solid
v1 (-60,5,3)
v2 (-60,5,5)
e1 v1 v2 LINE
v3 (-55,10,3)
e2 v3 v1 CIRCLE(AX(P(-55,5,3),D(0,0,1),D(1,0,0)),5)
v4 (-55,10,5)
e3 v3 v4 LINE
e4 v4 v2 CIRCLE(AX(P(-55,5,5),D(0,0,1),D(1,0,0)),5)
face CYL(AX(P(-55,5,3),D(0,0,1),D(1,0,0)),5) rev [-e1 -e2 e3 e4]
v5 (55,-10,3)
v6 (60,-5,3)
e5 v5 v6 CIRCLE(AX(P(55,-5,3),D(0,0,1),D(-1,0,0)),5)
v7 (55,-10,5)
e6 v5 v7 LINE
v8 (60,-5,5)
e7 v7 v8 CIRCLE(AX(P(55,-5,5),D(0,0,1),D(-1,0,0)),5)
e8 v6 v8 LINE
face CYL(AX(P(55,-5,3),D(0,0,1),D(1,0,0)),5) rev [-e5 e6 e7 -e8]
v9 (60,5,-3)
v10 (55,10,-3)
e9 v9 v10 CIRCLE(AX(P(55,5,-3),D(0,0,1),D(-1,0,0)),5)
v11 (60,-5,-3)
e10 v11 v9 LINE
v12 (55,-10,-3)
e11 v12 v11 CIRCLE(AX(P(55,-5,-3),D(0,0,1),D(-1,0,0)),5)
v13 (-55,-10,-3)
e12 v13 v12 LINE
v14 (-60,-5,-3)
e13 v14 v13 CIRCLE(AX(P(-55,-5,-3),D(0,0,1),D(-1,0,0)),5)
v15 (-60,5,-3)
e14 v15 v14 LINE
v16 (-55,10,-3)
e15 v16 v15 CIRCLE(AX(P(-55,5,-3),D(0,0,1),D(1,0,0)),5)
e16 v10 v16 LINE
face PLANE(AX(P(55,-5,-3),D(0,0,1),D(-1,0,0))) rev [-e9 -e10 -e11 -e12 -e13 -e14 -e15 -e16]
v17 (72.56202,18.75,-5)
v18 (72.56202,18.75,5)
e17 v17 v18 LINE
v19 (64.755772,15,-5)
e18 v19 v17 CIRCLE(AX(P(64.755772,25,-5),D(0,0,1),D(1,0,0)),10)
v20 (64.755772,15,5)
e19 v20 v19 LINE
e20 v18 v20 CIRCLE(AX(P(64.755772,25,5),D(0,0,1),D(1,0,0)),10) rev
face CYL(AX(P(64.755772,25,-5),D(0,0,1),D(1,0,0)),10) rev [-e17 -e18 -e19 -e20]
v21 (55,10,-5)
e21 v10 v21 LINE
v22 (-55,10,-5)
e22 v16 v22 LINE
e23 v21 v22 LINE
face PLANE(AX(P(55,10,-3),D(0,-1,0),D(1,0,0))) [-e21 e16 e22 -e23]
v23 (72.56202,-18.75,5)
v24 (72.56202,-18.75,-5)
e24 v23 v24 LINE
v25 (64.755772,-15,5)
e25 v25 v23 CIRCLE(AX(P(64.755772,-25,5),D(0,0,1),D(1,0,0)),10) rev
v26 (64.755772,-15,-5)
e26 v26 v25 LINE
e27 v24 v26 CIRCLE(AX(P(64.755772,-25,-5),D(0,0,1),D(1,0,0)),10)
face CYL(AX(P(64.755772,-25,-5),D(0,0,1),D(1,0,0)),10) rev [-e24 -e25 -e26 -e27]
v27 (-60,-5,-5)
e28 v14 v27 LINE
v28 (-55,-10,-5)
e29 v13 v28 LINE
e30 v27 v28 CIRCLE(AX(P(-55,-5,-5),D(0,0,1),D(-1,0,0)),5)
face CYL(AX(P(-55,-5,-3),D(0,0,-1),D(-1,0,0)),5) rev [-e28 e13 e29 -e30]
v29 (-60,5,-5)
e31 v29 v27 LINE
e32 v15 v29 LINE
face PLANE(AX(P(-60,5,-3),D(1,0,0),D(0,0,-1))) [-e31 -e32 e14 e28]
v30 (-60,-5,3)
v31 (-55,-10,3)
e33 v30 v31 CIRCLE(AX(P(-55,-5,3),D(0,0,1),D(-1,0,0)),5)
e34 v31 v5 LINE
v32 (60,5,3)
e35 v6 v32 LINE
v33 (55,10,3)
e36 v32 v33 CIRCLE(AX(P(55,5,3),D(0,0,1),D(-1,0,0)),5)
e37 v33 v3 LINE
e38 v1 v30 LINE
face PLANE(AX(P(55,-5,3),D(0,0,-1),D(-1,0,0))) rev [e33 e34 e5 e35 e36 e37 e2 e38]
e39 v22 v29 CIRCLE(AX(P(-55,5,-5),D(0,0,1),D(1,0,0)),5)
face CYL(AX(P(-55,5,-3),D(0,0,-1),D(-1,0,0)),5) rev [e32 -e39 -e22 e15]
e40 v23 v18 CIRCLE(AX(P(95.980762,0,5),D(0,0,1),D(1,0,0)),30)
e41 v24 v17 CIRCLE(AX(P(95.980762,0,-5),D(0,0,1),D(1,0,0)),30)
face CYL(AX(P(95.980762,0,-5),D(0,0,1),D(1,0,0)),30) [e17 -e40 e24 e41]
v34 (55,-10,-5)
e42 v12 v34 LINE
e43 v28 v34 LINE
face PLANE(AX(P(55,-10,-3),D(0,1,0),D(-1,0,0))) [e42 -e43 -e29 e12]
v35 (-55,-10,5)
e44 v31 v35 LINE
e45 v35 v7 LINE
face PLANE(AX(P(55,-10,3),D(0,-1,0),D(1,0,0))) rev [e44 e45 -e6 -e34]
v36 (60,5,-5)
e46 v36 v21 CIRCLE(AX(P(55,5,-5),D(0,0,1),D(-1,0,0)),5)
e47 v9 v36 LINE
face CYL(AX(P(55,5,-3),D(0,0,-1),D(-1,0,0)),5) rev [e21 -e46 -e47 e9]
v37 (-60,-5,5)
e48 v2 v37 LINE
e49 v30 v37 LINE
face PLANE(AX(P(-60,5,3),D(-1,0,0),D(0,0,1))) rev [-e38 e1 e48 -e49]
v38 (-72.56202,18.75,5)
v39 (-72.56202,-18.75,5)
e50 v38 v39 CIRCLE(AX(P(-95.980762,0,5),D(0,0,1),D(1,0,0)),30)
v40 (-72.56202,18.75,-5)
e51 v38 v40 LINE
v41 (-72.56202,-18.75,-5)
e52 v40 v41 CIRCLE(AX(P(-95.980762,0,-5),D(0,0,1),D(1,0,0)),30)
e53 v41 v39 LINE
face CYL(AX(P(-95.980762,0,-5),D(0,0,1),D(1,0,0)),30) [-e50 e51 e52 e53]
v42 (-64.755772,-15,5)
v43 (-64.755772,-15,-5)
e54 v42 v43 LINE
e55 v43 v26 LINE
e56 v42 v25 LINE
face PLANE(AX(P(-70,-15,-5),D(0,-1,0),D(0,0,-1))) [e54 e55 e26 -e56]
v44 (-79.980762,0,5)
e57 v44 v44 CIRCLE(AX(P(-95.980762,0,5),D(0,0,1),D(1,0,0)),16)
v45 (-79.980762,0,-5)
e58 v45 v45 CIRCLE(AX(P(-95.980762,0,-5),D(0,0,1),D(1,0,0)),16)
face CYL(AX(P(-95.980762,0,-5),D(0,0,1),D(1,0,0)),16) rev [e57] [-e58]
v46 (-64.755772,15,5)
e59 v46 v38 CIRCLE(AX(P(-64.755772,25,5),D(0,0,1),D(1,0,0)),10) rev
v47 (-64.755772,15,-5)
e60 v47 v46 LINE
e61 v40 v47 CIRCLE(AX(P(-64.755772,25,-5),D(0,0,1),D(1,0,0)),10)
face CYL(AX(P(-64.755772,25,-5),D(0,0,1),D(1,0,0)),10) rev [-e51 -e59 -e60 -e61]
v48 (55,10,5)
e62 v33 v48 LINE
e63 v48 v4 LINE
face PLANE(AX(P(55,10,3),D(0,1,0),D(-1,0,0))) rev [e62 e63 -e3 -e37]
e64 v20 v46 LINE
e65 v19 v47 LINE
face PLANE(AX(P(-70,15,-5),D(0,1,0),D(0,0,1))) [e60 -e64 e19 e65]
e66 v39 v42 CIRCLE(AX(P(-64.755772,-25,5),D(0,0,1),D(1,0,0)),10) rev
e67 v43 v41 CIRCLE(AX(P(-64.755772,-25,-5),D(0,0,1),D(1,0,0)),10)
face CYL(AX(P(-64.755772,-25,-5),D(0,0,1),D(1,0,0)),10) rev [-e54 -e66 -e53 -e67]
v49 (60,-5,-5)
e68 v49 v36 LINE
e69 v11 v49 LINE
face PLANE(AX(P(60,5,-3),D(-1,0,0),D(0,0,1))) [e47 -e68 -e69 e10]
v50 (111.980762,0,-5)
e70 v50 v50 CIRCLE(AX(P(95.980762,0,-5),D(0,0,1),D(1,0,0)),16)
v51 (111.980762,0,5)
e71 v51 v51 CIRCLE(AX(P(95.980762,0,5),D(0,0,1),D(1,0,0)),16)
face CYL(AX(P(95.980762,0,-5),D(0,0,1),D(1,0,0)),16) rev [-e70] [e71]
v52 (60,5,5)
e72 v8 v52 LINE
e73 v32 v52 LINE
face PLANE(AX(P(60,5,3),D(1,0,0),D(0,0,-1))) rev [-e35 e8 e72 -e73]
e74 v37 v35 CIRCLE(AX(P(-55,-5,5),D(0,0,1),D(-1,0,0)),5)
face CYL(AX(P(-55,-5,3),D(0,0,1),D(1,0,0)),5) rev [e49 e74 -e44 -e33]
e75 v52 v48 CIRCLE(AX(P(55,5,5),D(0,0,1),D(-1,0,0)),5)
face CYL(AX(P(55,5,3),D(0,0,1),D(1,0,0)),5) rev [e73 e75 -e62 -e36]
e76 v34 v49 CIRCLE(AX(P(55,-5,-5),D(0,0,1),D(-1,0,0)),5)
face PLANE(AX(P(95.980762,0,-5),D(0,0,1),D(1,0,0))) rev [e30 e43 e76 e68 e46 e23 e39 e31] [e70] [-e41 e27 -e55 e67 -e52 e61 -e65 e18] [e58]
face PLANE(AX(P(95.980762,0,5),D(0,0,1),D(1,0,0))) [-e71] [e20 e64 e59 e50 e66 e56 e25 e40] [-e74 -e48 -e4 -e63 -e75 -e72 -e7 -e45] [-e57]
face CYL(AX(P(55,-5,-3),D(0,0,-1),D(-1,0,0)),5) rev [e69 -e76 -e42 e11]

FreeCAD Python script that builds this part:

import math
import FreeCAD as App
import Part
import Sketcher

V = App.Vector


def edges_at(feature, points):
    """Names of the edges that pass closest to the given points."""
    edges = feature.Shape.Edges
    near = lambda p: min(range(len(edges)), key=lambda i: edges[i].distToShape(Part.Vertex(*p))[0])
    return sorted({f"Edge{near(p) + 1}" for p in points})

doc = App.newDocument("Part")
params = doc.addObject("Spreadsheet::Sheet", "Params")
for row, (alias, value) in enumerate([
    ("sketch1_diameter", "32 mm"),
    ("sketch1_radius", "30 mm"),
    ("sketch1_width", "140 mm"),
    ("pad1_length", "5 mm"),
    ("pad1_length2", "5 mm"),
    ("fillet_radius", "10 mm"),
    ("sketch2_radius", "5 mm"),
    ("sketch2_width", "110 mm"),
    ("sketch2_height", "10 mm"),
    ("pocket1_length", "2 mm"),
], start=1):
    params.set(f"A{row}", alias)
    params.set(f"B{row}", "=" + value)
    params.setAlias(f"B{row}", alias)

body = doc.addObject("PartDesign::Body", "Body")

# Sketch on XY plane
sketch1 = body.newObject("Sketcher::SketchObject", "Sketch")
sketch1.AttachmentSupport = (doc.getObject("XY_Plane"), [""])
sketch1.MapMode = "FlatFace"
sketch1.addGeometry(Part.LineSegment(V(-70, -15, 0), V(70, -15, 0)), False)
sketch1.addGeometry(Part.ArcOfCircle(Part.Circle(V(96, 0, 0), V(0, 0, 1), 30), math.radians(-150), math.radians(150)), False)
sketch1.addGeometry(Part.LineSegment(V(70, 15, 0), V(-70, 15, 0)), False)
sketch1.addGeometry(Part.ArcOfCircle(Part.Circle(V(-96, 0, 0), V(0, 0, 1), 30), math.radians(30), math.radians(330)), False)
sketch1.addGeometry(Part.Circle(V(-96, 0, 0), V(0, 0, 1), 16), False)
sketch1.addGeometry(Part.Circle(V(96, 0, 0), V(0, 0, 1), 16), False)
sketch1.addConstraint(Sketcher.Constraint("Coincident", 0, 2, 1, 1))
sketch1.addConstraint(Sketcher.Constraint("Coincident", 1, 2, 2, 1))
sketch1.addConstraint(Sketcher.Constraint("Coincident", 2, 2, 3, 1))
sketch1.addConstraint(Sketcher.Constraint("Coincident", 3, 2, 0, 1))
sketch1.addConstraint(Sketcher.Constraint("Horizontal", 0))
sketch1.addConstraint(Sketcher.Constraint("Horizontal", 2))
sketch1.addConstraint(Sketcher.Constraint("Coincident", 4, 3, 3, 3))
sketch1.addConstraint(Sketcher.Constraint("Coincident", 5, 3, 1, 3))
sketch1.addConstraint(Sketcher.Constraint("Equal", 1, 3))
sketch1.addConstraint(Sketcher.Constraint("Equal", 4, 5))
sketch1.addConstraint(Sketcher.Constraint("Symmetric", 1, 3, 3, 3, -1, 1))
sketch1.addConstraint(Sketcher.Constraint("Symmetric", 0, 2, 1, 2, -1))
sketch1.addConstraint(Sketcher.Constraint("Diameter", 4, 32.0))
sketch1.addConstraint(Sketcher.Constraint("Radius", 1, 30.0))
sketch1.addConstraint(Sketcher.Constraint("DistanceX", 0, 1, 0, 2, 140.0))
sketch1.addConstraint(Sketcher.Constraint("DistanceY", 0, 2, -1, 1, 15.0))
sketch1.setExpression("Constraints[12]", "Params.sketch1_diameter")
sketch1.setExpression("Constraints[13]", "Params.sketch1_radius")
sketch1.setExpression("Constraints[14]", "Params.sketch1_width")
pad1 = body.newObject("PartDesign::Pad", "Pad")
pad1.Profile = sketch1
pad1.Type = "TwoLengths"
pad1.setExpression("Length", "Params.pad1_length")
pad1.setExpression("Length2", "Params.pad1_length2")
doc.recompute()

fillet = body.newObject("PartDesign::Fillet", "Fillet")
fillet.Base = (pad1, edges_at(pad1, [
    (70, -15, 0),
    (-70, -15, 0),
    (-70, 15, 0),
    (70, 15, 0),
]))
fillet.setExpression("Radius", "Params.fillet_radius")

# Sketch on XY plane
sketch2 = body.newObject("Sketcher::SketchObject", "Sketch001")
sketch2.AttachmentSupport = (doc.getObject("XY_Plane"), [""])
sketch2.MapMode = "FlatFace"
sketch2.AttachmentOffset = App.Placement(V(0, 0, 5), App.Rotation())
sketch2.addGeometry(Part.LineSegment(V(55, 10, 0), V(-55, 10, 0)), False)
sketch2.addGeometry(Part.ArcOfCircle(Part.Circle(V(-55, 5, 0), V(0, 0, 1), 5), math.radians(90), math.radians(180)), False)
sketch2.addGeometry(Part.LineSegment(V(-60, 5, 0), V(-60, -5, 0)), False)
sketch2.addGeometry(Part.ArcOfCircle(Part.Circle(V(-55, -5, 0), V(0, 0, 1), 5), math.radians(180), math.radians(270)), False)
sketch2.addGeometry(Part.LineSegment(V(-55, -10, 0), V(55, -10, 0)), False)
sketch2.addGeometry(Part.ArcOfCircle(Part.Circle(V(55, -5, 0), V(0, 0, 1), 5), math.radians(-90), math.radians(0)), False)
sketch2.addGeometry(Part.LineSegment(V(60, -5, 0), V(60, 5, 0)), False)
sketch2.addGeometry(Part.ArcOfCircle(Part.Circle(V(55, 5, 0), V(0, 0, 1), 5), math.radians(0), math.radians(90)), False)
sketch2.addConstraint(Sketcher.Constraint("Tangent", 0, 2, 1, 1))
sketch2.addConstraint(Sketcher.Constraint("Tangent", 1, 2, 2, 1))
sketch2.addConstraint(Sketcher.Constraint("Tangent", 2, 2, 3, 1))
sketch2.addConstraint(Sketcher.Constraint("Tangent", 3, 2, 4, 1))
sketch2.addConstraint(Sketcher.Constraint("Tangent", 4, 2, 5, 1))
sketch2.addConstraint(Sketcher.Constraint("Tangent", 5, 2, 6, 1))
sketch2.addConstraint(Sketcher.Constraint("Tangent", 6, 2, 7, 1))
sketch2.addConstraint(Sketcher.Constraint("Tangent", 7, 2, 0, 1))
sketch2.addConstraint(Sketcher.Constraint("Horizontal", 0))
sketch2.addConstraint(Sketcher.Constraint("Vertical", 2))
sketch2.addConstraint(Sketcher.Constraint("Horizontal", 4))
sketch2.addConstraint(Sketcher.Constraint("Vertical", 6))
sketch2.addConstraint(Sketcher.Constraint("Equal", 1, 3))
sketch2.addConstraint(Sketcher.Constraint("Equal", 3, 5))
sketch2.addConstraint(Sketcher.Constraint("Equal", 5, 7))
sketch2.addConstraint(Sketcher.Constraint("Symmetric", 1, 3, 5, 3, -1, 1))
sketch2.addConstraint(Sketcher.Constraint("Radius", 1, 5.0))
sketch2.addConstraint(Sketcher.Constraint("DistanceX", 0, 2, 0, 1, 110.0))
sketch2.addConstraint(Sketcher.Constraint("DistanceY", 2, 2, 2, 1, 10.0))
sketch2.setExpression("Constraints[16]", "Params.sketch2_radius")
sketch2.setExpression("Constraints[17]", "Params.sketch2_width")
sketch2.setExpression("Constraints[18]", "Params.sketch2_height")
pocket1 = body.newObject("PartDesign::Pocket", "Pocket")
pocket1.Profile = sketch2
pocket1.setExpression("Length", "Params.pocket1_length")
doc.recompute()

mirrored = body.newObject("PartDesign::Mirrored", "Mirrored")
mirrored.Originals = [pocket1]
mirrored.MirrorPlane = (doc.getObject("XY_Plane"), [""])
body.Tip = mirrored

doc.recompute()
